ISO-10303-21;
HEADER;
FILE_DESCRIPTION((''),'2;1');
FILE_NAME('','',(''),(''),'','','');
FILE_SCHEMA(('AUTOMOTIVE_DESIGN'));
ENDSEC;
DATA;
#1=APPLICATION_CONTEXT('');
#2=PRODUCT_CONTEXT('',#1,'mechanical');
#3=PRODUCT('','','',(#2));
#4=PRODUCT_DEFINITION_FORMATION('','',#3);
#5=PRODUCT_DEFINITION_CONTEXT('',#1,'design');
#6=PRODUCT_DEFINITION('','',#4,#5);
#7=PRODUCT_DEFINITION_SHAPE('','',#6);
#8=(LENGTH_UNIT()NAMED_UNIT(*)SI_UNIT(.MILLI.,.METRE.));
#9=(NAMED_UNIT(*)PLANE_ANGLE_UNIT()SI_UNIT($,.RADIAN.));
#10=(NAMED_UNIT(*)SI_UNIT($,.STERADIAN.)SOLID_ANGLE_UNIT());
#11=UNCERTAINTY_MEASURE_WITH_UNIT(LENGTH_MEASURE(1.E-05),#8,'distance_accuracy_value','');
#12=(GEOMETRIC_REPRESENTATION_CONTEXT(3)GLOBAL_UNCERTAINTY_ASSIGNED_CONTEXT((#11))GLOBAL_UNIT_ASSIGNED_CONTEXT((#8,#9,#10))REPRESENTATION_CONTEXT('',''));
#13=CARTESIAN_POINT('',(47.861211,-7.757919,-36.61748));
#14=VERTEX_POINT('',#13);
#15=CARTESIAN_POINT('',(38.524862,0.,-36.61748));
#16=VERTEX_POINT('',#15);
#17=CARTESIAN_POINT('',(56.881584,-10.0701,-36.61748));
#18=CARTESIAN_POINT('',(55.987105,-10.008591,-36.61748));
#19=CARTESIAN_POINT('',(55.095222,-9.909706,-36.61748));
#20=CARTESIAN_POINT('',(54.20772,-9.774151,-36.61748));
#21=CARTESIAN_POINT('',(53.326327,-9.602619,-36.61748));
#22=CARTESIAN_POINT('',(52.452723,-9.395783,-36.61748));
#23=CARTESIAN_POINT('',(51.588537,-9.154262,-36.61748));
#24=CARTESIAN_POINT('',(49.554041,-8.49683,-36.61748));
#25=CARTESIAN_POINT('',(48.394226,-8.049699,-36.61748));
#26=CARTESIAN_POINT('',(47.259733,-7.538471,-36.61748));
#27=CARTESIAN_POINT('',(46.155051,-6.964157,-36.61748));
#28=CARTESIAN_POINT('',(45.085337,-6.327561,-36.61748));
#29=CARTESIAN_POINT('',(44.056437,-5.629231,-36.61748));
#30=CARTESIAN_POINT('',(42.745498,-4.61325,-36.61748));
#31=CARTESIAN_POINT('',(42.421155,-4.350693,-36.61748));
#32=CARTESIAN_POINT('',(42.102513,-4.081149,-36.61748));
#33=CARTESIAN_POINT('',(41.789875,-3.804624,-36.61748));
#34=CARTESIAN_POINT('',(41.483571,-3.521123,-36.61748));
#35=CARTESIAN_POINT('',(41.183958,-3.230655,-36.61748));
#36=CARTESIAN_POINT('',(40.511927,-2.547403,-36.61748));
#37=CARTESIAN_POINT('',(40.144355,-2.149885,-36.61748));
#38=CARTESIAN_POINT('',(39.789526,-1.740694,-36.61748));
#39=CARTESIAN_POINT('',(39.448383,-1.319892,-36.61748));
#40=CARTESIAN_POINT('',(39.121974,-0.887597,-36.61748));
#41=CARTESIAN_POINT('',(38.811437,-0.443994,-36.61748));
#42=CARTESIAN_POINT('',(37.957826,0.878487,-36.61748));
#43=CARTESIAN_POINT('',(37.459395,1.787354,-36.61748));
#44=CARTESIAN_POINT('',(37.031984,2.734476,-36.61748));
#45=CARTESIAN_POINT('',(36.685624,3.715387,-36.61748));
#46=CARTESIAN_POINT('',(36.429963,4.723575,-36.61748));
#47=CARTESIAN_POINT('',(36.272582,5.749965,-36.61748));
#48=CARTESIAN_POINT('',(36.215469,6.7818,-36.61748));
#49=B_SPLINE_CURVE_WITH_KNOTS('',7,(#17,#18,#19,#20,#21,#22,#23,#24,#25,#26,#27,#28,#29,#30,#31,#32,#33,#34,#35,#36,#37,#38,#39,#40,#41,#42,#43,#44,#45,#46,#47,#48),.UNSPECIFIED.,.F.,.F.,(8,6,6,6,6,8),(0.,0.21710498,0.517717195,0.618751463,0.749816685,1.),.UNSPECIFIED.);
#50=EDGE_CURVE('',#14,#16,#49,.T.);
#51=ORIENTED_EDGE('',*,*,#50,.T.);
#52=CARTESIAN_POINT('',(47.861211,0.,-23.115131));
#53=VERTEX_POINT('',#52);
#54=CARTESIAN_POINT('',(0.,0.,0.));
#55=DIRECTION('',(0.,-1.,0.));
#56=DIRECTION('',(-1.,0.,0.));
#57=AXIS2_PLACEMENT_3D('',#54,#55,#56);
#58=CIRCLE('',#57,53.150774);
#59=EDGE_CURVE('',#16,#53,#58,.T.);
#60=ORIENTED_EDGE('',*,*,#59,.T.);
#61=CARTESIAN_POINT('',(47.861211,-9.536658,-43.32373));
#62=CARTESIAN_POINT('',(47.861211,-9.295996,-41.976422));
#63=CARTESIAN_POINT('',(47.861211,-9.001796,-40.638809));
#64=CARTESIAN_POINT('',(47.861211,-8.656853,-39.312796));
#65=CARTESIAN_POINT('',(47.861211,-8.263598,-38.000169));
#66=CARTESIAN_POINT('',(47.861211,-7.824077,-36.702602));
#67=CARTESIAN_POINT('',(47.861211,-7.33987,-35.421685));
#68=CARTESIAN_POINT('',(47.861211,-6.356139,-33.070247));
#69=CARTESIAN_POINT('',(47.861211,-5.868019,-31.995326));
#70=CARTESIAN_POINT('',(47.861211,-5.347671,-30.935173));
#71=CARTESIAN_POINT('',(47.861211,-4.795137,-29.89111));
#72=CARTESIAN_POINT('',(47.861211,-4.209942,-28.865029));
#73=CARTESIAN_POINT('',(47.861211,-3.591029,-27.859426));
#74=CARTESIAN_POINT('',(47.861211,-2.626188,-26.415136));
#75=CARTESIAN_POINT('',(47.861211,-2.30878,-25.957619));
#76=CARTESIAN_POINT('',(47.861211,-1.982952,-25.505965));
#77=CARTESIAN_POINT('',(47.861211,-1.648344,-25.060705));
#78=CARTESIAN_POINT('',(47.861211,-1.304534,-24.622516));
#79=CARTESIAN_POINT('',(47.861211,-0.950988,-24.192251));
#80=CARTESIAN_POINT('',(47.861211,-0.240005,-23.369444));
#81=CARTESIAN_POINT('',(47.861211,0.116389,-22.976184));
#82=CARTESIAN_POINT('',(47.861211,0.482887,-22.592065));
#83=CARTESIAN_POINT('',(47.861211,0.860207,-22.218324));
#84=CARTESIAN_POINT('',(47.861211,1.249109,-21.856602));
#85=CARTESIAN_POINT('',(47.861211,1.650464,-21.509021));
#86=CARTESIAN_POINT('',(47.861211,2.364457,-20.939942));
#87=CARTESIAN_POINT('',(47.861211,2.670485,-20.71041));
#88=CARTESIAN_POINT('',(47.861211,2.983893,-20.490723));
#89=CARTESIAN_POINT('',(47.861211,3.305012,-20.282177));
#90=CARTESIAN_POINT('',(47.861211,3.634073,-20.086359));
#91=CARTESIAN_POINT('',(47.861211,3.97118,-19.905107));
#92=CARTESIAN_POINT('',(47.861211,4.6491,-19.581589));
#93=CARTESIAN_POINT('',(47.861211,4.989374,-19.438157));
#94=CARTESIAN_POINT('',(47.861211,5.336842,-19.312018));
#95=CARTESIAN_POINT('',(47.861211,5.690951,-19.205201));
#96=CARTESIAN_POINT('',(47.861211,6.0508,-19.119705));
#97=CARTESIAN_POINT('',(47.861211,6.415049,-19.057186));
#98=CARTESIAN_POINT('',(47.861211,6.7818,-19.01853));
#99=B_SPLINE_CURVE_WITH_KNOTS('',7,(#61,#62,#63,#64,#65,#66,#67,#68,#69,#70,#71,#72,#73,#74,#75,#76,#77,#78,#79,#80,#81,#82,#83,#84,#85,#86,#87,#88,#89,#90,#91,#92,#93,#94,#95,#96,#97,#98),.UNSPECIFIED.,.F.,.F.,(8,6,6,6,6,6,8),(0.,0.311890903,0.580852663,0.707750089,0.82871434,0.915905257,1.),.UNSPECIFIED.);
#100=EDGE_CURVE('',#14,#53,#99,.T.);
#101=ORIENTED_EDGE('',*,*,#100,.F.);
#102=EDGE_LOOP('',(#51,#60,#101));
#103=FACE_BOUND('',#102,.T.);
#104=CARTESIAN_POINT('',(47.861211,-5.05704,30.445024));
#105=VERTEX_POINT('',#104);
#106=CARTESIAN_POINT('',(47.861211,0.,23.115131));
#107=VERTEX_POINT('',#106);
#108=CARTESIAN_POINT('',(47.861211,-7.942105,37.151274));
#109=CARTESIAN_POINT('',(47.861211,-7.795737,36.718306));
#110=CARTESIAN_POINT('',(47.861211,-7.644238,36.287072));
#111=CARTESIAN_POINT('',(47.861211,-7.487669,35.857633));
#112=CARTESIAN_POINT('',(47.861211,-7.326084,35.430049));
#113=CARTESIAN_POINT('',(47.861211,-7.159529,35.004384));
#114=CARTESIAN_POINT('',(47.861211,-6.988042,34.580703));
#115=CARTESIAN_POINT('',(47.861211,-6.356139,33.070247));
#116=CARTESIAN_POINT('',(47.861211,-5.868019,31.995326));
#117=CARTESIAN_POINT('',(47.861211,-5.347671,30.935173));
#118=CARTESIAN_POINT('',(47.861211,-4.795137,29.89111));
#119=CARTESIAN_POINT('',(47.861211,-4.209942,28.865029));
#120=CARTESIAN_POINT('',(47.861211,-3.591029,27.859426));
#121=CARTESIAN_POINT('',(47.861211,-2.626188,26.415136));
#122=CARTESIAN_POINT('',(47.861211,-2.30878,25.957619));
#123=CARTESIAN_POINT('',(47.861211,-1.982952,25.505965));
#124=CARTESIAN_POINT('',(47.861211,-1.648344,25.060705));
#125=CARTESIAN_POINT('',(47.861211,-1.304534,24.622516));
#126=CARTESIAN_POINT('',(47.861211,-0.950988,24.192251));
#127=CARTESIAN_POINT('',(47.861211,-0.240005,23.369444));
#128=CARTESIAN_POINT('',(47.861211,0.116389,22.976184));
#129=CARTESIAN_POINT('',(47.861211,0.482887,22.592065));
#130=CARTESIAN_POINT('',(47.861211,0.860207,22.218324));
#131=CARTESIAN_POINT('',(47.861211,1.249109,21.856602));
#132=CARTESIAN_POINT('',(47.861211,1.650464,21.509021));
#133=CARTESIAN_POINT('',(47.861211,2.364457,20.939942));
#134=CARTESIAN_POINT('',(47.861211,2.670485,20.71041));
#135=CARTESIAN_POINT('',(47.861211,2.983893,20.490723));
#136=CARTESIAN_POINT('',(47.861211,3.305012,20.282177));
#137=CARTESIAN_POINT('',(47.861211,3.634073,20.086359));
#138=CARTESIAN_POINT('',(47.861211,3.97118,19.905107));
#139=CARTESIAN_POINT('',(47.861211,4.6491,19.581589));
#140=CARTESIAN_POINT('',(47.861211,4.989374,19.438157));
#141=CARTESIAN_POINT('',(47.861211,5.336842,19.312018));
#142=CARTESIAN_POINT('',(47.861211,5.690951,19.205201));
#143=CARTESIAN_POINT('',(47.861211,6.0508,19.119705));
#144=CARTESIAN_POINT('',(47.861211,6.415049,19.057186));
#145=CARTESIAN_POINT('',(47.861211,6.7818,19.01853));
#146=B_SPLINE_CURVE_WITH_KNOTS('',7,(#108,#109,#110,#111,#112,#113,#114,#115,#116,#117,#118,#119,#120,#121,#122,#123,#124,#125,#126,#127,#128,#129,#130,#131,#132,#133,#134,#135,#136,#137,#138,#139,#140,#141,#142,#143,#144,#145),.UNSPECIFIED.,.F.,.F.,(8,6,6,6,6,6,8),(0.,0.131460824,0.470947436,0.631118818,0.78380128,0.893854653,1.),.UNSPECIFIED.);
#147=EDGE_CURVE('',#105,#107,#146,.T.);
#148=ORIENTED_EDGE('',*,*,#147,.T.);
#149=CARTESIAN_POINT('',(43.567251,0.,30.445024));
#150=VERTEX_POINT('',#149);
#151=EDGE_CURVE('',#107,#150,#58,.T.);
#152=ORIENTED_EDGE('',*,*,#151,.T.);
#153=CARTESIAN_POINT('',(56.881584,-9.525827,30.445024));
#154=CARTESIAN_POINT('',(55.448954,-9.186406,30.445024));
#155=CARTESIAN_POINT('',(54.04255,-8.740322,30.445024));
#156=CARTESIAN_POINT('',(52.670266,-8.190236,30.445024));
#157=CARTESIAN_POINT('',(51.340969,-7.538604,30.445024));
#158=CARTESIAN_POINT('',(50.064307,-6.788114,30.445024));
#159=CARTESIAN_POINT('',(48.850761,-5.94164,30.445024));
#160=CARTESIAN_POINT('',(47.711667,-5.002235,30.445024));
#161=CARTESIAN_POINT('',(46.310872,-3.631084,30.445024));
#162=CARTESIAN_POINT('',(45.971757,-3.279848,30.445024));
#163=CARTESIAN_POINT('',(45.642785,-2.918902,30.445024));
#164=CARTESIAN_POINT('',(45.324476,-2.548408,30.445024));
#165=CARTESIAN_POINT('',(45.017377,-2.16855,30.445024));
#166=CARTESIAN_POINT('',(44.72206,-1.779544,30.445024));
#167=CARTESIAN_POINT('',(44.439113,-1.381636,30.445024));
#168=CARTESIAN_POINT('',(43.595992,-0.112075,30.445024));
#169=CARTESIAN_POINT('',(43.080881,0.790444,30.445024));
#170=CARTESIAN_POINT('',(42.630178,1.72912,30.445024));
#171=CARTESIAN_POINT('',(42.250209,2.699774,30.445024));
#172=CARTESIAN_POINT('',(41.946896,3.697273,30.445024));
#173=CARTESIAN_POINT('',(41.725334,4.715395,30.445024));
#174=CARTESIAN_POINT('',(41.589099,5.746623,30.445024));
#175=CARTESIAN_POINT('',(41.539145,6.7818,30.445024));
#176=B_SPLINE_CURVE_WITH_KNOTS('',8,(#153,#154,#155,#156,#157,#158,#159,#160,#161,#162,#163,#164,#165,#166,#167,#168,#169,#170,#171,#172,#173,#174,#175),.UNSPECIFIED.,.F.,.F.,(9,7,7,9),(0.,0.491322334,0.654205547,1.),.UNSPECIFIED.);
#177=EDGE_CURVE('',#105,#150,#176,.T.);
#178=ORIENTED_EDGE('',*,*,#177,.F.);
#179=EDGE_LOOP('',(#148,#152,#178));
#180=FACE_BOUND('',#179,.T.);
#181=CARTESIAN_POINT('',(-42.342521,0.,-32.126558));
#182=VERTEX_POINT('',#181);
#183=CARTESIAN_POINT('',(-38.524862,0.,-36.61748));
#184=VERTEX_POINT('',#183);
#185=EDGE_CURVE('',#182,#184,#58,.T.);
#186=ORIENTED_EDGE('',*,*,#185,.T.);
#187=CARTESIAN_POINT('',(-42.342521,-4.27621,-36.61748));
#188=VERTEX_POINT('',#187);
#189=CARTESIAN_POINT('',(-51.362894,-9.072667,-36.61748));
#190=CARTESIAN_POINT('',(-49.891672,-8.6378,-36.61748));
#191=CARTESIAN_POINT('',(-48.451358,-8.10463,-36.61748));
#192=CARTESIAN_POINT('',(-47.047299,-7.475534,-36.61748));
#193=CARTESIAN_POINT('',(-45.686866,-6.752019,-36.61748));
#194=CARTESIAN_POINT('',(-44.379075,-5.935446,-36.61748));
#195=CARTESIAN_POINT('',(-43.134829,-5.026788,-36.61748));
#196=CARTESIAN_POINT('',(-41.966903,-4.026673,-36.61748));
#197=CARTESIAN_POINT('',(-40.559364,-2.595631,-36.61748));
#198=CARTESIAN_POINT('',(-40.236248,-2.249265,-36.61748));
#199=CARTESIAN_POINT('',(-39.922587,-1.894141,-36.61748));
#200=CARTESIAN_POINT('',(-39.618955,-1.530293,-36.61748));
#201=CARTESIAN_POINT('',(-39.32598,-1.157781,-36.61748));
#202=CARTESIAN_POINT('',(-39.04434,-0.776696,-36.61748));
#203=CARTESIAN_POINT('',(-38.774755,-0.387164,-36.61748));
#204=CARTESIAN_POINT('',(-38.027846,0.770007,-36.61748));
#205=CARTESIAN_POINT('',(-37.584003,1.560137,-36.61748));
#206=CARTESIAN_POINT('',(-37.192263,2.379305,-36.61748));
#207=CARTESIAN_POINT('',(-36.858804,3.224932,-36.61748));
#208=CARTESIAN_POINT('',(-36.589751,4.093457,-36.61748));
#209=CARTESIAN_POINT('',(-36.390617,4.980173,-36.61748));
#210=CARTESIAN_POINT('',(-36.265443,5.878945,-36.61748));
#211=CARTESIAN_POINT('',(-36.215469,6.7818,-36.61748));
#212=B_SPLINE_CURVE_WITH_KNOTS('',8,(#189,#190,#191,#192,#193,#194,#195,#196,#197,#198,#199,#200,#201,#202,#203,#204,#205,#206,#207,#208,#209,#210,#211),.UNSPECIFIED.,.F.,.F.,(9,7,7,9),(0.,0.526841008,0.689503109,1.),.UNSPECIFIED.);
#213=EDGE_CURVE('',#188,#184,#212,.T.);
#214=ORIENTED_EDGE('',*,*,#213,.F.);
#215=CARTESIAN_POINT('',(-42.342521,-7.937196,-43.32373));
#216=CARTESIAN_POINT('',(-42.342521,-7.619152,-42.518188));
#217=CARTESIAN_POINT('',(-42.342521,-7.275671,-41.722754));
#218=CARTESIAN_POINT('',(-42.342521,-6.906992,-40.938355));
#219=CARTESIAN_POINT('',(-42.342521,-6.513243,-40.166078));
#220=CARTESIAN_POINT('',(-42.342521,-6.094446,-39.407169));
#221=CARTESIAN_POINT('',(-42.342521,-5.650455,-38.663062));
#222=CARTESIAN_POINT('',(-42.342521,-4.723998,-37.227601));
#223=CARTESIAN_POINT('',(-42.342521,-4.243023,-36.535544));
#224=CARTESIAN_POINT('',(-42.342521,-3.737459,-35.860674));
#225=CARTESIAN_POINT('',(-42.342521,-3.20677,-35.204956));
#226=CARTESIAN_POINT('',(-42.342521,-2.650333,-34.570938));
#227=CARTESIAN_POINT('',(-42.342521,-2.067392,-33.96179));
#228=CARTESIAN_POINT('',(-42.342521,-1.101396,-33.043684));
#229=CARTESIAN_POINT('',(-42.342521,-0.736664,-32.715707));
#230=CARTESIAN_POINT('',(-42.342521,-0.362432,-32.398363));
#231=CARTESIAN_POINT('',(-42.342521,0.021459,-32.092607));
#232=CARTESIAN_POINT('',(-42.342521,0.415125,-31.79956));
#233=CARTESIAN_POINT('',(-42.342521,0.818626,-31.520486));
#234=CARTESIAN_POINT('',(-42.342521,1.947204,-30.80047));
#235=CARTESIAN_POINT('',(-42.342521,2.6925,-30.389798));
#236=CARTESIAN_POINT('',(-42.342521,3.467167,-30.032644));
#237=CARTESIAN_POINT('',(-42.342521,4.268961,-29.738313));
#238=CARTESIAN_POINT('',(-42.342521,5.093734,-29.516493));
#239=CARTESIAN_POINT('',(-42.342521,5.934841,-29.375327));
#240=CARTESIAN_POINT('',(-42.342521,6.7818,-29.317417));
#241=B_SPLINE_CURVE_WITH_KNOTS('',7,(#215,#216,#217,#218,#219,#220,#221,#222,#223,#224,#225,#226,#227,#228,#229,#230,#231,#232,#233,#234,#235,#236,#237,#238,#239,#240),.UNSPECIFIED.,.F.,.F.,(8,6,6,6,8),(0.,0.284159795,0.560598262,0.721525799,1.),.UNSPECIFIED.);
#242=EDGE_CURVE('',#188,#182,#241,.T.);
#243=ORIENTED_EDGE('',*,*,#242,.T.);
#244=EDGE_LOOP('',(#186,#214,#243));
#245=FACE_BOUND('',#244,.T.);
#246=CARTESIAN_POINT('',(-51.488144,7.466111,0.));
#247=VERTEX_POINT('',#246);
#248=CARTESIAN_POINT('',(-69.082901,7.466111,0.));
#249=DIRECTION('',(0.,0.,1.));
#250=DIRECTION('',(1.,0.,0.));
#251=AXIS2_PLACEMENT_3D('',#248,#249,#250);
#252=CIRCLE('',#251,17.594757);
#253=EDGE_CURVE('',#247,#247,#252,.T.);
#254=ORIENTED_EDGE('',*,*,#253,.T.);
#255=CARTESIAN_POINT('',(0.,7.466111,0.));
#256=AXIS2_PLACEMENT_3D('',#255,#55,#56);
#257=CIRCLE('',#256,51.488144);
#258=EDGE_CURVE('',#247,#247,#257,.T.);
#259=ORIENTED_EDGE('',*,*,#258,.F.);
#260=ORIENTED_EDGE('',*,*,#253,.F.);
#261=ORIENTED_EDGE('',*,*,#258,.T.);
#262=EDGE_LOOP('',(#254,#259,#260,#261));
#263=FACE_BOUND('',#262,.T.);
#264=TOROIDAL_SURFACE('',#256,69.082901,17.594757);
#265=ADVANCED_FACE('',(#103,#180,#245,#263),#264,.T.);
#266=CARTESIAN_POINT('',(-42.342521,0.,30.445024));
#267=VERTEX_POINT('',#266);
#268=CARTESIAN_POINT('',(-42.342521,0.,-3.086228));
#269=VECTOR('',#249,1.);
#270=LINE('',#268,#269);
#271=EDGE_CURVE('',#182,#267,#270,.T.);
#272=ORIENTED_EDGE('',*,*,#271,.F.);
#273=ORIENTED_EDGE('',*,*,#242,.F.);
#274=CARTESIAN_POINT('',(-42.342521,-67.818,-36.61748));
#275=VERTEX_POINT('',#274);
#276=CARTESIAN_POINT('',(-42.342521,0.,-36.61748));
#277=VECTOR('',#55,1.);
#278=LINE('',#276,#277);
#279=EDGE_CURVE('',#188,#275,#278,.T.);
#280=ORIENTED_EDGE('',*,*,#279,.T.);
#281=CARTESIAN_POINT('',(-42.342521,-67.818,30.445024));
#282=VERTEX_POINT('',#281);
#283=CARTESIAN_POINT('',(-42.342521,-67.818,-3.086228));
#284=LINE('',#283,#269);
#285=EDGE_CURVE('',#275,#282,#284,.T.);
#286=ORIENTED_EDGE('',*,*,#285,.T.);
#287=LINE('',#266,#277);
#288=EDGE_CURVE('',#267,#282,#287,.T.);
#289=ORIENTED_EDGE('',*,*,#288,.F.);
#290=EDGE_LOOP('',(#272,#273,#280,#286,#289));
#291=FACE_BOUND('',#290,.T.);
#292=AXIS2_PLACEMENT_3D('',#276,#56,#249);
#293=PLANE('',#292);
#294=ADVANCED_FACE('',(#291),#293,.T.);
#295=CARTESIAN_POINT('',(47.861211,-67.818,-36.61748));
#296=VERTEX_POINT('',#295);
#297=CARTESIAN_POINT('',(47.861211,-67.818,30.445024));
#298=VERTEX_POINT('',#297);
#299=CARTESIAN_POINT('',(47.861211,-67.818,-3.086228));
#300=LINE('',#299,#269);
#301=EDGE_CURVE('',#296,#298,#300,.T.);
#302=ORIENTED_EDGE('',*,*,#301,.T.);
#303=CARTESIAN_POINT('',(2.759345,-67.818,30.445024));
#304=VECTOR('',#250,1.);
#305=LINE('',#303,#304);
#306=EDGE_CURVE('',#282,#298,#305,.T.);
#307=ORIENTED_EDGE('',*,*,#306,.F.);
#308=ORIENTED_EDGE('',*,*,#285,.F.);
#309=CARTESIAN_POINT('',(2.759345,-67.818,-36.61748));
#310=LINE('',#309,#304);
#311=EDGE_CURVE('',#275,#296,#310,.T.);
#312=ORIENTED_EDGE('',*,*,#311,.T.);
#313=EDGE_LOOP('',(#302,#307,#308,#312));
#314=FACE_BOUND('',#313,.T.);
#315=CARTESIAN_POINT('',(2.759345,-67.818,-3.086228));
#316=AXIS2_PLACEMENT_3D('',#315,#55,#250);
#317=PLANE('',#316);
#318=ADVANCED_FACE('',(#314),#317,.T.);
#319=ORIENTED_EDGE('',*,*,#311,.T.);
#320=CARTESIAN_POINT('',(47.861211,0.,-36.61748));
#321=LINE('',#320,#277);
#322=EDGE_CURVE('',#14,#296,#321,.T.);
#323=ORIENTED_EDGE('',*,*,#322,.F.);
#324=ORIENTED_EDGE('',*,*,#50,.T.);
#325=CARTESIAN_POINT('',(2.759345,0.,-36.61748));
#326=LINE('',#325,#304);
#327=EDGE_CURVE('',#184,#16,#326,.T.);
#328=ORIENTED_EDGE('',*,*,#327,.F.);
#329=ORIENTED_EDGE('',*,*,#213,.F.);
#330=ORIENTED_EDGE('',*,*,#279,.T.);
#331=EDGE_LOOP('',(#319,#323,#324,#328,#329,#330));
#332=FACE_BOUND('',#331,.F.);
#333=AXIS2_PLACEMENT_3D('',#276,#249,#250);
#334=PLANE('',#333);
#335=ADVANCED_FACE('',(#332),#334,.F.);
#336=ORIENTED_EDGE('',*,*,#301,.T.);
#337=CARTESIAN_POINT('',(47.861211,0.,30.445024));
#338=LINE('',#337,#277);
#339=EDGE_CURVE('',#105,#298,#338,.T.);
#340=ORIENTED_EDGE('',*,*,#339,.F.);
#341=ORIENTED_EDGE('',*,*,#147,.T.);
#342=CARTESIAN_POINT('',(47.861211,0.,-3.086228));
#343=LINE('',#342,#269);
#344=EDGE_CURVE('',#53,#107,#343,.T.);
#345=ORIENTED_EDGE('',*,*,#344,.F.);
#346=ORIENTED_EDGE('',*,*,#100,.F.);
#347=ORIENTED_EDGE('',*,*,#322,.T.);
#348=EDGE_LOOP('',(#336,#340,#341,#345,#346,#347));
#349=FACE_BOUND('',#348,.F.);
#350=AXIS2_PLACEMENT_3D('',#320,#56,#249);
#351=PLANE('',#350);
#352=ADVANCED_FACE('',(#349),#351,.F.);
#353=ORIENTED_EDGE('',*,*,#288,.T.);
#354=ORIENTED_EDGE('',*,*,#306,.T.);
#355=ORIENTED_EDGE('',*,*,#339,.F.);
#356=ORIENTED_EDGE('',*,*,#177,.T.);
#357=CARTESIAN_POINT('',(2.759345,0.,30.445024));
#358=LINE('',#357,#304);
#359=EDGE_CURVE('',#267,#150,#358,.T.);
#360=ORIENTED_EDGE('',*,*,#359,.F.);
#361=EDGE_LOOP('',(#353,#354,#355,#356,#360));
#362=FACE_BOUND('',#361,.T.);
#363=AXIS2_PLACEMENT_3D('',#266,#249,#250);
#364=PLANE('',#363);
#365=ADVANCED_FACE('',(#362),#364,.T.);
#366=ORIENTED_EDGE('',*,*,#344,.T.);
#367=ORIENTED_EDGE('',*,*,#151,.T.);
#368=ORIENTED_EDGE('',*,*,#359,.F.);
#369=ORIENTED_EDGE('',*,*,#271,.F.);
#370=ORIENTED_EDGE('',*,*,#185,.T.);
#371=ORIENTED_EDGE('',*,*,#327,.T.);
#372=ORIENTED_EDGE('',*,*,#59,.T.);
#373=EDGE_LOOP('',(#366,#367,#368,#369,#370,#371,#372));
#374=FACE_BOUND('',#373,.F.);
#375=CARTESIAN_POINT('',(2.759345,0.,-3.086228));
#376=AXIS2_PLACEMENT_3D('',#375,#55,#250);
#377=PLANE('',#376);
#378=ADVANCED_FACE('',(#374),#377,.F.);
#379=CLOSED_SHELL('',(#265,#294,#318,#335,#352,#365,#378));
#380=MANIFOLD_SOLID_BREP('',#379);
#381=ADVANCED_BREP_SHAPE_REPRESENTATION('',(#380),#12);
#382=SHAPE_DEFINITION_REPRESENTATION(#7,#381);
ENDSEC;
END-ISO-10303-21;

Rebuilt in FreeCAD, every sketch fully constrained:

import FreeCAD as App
import Part
import Sketcher
from FreeCAD import Vector
Q = App.Units.Quantity

doc = App.newDocument("Part")
body = doc.addObject("PartDesign::Body", "Body")

# Sketch on XZ plane
sketch1 = doc.addObject("Sketcher::SketchObject", "Sketch")
body.addObject(sketch1)
sketch1.AttachmentSupport = (doc.XZ_Plane, [""])
sketch1.MapMode = "FlatFace"
sketch1.addGeometry(Part.LineSegment(Vector(-42, 30, 0), Vector(-42, -37, 0)), False)
sketch1.addGeometry(Part.LineSegment(Vector(-42, -37, 0), Vector(48, -37, 0)), False)
sketch1.addGeometry(Part.LineSegment(Vector(48, -37, 0), Vector(48, 30, 0)), False)
sketch1.addGeometry(Part.LineSegment(Vector(48, 30, 0), Vector(-42, 30, 0)), False)
sketch1.addConstraint(Sketcher.Constraint("Coincident", 0, 2, 1, 1))
sketch1.addConstraint(Sketcher.Constraint("Coincident", 1, 2, 2, 1))
sketch1.addConstraint(Sketcher.Constraint("Coincident", 2, 2, 3, 1))
sketch1.addConstraint(Sketcher.Constraint("Coincident", 3, 2, 0, 1))
sketch1.addConstraint(Sketcher.Constraint("Vertical", 0))
sketch1.addConstraint(Sketcher.Constraint("Horizontal", 1))
sketch1.addConstraint(Sketcher.Constraint("Vertical", 2))
sketch1.addConstraint(Sketcher.Constraint("Horizontal", 3))
sketch1.addConstraint(Sketcher.Constraint("DistanceX", 1, 1, 1, 2, Q("90.203732 mm")))
sketch1.addConstraint(Sketcher.Constraint("DistanceY", 0, 2, 0, 1, Q("67.062504 mm")))
sketch1.addConstraint(Sketcher.Constraint("DistanceX", 0, 2, -1, 1, Q("42.342521 mm")))
sketch1.addConstraint(Sketcher.Constraint("DistanceY", 0, 2, -1, 1, Q("36.61748 mm")))
pad1 = doc.addObject("PartDesign::Pad", "Pad")
body.addObject(pad1)
pad1.Profile = sketch1
pad1.Length = Q("2.67 in")

# Sketch on XY plane
sketch2 = doc.addObject("Sketcher::SketchObject", "Sketch001")
body.addObject(sketch2)
sketch2.AttachmentSupport = (doc.XY_Plane, [""])
sketch2.MapMode = "FlatFace"
sketch2.addGeometry(Part.Circle(Vector(-69, 7, 0), Vector(0, 0, 1), 18), False)
sketch2.addConstraint(Sketcher.Constraint("Diameter", 0, Q("35.189514 mm")))
sketch2.addConstraint(Sketcher.Constraint("DistanceX", 0, 3, -1, 1, Q("69.082901 mm")))
sketch2.addConstraint(Sketcher.Constraint("DistanceY", -1, 1, 0, 3, Q("7.466111 mm")))
revolution = doc.addObject("PartDesign::Revolution", "Revolution")
body.addObject(revolution)
revolution.Profile = sketch2
revolution.ReferenceAxis = (sketch2, ["V_Axis"])
revolution.Angle = 360

doc.recompute()
